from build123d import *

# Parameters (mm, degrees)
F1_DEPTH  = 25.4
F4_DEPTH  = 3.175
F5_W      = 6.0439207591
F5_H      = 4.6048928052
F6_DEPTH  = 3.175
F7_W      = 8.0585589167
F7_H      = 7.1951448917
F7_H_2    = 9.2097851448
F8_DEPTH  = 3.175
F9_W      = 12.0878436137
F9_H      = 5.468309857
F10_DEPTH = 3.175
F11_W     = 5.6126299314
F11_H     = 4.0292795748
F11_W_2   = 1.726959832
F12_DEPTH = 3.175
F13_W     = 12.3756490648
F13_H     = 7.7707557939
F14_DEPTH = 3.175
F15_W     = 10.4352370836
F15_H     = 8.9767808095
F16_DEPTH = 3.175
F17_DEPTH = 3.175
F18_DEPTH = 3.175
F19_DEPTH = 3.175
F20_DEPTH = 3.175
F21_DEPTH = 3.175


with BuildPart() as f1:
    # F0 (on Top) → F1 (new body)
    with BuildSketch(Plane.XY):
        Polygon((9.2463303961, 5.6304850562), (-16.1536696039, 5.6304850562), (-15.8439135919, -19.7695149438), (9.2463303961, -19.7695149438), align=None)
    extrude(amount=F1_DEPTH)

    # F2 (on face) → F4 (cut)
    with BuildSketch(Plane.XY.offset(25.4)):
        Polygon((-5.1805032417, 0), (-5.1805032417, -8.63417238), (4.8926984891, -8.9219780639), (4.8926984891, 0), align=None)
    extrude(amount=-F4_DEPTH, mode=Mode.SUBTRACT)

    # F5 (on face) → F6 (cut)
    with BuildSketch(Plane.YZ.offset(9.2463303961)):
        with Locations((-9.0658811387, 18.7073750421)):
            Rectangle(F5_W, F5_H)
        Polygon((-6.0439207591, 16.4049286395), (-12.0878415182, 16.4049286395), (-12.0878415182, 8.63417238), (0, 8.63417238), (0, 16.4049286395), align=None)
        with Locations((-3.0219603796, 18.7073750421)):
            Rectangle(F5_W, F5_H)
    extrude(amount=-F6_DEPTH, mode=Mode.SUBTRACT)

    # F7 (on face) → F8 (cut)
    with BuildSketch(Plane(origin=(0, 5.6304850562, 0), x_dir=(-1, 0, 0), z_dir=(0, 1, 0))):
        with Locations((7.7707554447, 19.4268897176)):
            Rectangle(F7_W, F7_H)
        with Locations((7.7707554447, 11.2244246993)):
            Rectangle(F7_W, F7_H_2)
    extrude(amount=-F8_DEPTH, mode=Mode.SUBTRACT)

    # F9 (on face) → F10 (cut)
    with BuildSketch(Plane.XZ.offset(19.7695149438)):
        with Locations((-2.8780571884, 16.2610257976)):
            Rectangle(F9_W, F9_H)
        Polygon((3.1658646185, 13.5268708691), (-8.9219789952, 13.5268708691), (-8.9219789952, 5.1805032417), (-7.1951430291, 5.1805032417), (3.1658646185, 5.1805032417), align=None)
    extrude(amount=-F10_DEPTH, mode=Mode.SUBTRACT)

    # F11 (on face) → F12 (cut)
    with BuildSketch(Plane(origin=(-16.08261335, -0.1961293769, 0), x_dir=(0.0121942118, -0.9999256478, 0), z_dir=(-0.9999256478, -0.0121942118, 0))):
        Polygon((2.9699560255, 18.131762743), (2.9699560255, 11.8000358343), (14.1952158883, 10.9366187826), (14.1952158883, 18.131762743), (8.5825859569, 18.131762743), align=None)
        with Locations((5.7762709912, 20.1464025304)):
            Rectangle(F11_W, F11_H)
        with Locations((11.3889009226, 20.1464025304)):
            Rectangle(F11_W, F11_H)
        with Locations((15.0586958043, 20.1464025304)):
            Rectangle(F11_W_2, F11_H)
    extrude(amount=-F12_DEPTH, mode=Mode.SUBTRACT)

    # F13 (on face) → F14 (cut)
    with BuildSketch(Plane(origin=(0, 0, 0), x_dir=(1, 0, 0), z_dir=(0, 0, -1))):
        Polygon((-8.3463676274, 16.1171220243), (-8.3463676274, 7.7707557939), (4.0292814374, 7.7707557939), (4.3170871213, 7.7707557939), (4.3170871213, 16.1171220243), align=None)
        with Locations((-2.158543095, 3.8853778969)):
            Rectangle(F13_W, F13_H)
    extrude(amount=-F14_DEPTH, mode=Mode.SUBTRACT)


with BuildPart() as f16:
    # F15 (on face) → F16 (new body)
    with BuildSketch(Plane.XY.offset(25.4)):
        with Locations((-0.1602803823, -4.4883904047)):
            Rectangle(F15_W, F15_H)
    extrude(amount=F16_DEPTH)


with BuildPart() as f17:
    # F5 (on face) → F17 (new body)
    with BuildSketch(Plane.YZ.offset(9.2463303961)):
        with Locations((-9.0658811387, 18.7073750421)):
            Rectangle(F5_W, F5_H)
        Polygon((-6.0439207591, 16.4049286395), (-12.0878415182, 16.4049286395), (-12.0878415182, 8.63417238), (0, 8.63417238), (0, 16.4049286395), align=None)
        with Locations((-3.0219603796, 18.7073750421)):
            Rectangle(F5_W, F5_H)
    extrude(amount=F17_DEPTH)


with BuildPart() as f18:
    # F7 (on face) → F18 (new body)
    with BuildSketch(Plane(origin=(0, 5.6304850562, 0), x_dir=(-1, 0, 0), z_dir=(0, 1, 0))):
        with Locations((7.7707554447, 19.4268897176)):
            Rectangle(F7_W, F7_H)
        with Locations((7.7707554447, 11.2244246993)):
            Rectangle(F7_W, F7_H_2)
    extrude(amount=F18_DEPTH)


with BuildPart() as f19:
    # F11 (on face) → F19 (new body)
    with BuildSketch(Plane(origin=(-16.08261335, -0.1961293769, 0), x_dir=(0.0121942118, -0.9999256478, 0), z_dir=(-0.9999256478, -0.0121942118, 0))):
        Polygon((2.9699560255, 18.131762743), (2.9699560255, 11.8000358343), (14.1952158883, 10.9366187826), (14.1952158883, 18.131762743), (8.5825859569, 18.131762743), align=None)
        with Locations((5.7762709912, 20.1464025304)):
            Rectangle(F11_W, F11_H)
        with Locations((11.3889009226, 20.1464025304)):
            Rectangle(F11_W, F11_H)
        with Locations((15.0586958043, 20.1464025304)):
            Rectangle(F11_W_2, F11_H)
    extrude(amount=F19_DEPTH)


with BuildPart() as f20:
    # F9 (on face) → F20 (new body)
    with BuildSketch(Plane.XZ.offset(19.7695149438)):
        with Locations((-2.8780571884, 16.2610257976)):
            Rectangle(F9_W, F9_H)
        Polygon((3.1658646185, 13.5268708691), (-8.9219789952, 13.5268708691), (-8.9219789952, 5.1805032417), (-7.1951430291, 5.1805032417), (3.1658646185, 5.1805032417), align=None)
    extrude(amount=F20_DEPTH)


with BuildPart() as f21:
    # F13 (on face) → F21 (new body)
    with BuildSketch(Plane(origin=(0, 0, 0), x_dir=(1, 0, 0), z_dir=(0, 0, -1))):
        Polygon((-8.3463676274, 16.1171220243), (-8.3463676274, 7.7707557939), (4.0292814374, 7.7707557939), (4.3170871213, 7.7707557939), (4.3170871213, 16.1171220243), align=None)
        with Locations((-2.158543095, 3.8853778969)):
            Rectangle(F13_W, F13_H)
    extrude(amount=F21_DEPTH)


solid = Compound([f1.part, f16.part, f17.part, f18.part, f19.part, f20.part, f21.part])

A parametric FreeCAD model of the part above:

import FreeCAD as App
import Part
import Sketcher

V = App.Vector
Q = App.Units.Quantity


def add_polygon(sketch, points):
    """Adds a closed chain of lines whose ends are joined by coincident constraints."""
    first, n = sketch.GeometryCount, len(points)
    for a, b in zip(points, points[1:] + points[:1]):
        sketch.addGeometry(Part.LineSegment(App.Vector(*a, 0), App.Vector(*b, 0)), False)
    for i in range(n):
        sketch.addConstraint(Sketcher.Constraint("Coincident", first + i, 2, first + (i + 1) % n, 1))

doc = App.newDocument("Part")
body = doc.addObject("PartDesign::Body", "Body")

sketch1 = body.newObject("Sketcher::SketchObject", "Sketch")
sketch1.AttachmentSupport = (doc.getObject("XY_Plane"), [""])
sketch1.MapMode = "FlatFace"
add_polygon(sketch1, [(9.24633, 5.630485), (-16.15367, 5.630485), (-15.843914, -19.769515), (9.24633, -19.769515)])
sketch1.addConstraint([
    Sketcher.Constraint("Horizontal", 0),
    Sketcher.Constraint("Horizontal", 2),
    Sketcher.Constraint("Vertical", 3),
    Sketcher.Constraint("Equal", 0, 3),
    Sketcher.Constraint("DistanceX", 0, 2, 0, 1, Q("1 in")),
    Sketcher.Constraint("Distance", 1, Q("25.401889 mm")),
    Sketcher.Constraint("DistanceX", 0, 2, -1, 1, Q("16.15367 mm")),
    Sketcher.Constraint("DistanceY", -1, 1, 0, 2, Q("5.630485 mm")),
])
pad1 = body.newObject("PartDesign::Pad", "Pad")
pad1.Profile = sketch1
pad1.Length = Q("1 in")

sketch2 = body.newObject("Sketcher::SketchObject", "Sketch001")
sketch2.AttachmentSupport = (doc.getObject("XY_Plane"), [""])
sketch2.MapMode = "FlatFace"
sketch2.AttachmentOffset = App.Placement(V(0, 0, 1 * 25.4), App.Rotation())
add_polygon(sketch2, [(-5, 0), (-5, -9), (5, -9), (5, 0)])
sketch2.addConstraint([
    Sketcher.Constraint("Vertical", 0),
    Sketcher.Constraint("Vertical", 2),
    Sketcher.Constraint("Horizontal", 3),
    Sketcher.Constraint("PointOnObject", 2, 2, -1),
    Sketcher.Constraint("DistanceX", 3, 2, 3, 1, Q("10.073202 mm")),
    Sketcher.Constraint("DistanceY", 2, 1, 2, 2, Q("8.921978 mm")),
    Sketcher.Constraint("DistanceX", -1, 1, 1, 2, Q("4.892698 mm")),
    Sketcher.Constraint("DistanceY", 0, 2, 0, 1, Q("8.634172 mm")),
])
pocket1 = body.newObject("PartDesign::Pocket", "Pocket")
pocket1.Profile = sketch2
pocket1.Length = Q("0.125 in")

sketch3 = body.newObject("Sketcher::SketchObject", "Sketch002")
sketch3.AttachmentSupport = (doc.getObject("YZ_Plane"), [""])
sketch3.MapMode = "FlatFace"
sketch3.AttachmentOffset = App.Placement(V(0, 0, 9.24633), App.Rotation())
add_polygon(sketch3, [(-12.1, 21), (-12.1, 8.6), (0, 8.6), (0, 16.4), (0, 21)])
sketch3.addConstraint([
    Sketcher.Constraint("Vertical", 0),
    Sketcher.Constraint("Horizontal", 1),
    Sketcher.Constraint("Vertical", 2),
    Sketcher.Constraint("Vertical", 3),
    Sketcher.Constraint("Horizontal", 4),
    Sketcher.Constraint("PointOnObject", 1, 2, -2),
    Sketcher.Constraint("DistanceX", 1, 1, 1, 2, Q("12.087842 mm")),
    Sketcher.Constraint("DistanceY", 0, 2, 0, 1, Q("12.375649 mm")),
    Sketcher.Constraint("DistanceY", 2, 1, 2, 2, Q("7.770756 mm")),
    Sketcher.Constraint("DistanceY", -1, 1, 2, 2, Q("16.404929 mm")),
])
pocket2 = body.newObject("PartDesign::Pocket", "Pocket001")
pocket2.Profile = sketch3
pocket2.Length = Q("0.125 in")

sketch4 = body.newObject("Sketcher::SketchObject", "Sketch003")
sketch4.AttachmentSupport = (doc.getObject("XZ_Plane"), [""])
sketch4.MapMode = "FlatFace"
sketch4.AttachmentOffset = App.Placement(V(0, 0, -5.630485), App.Rotation())
add_polygon(sketch4, [(-4, 23), (-4, 7), (-12, 7), (-12, 23)])
sketch4.addConstraint([
    Sketcher.Constraint("Vertical", 0),
    Sketcher.Constraint("Horizontal", 1),
    Sketcher.Constraint("Vertical", 2),
    Sketcher.Constraint("Horizontal", 3),
    Sketcher.Constraint("DistanceX", 1, 2, 1, 1, Q("8.058559 mm")),
    Sketcher.Constraint("DistanceY", 0, 2, 0, 1, Q("16.40493 mm")),
    Sketcher.Constraint("DistanceX", 0, 2, -1, 1, Q("3.741476 mm")),
    Sketcher.Constraint("DistanceY", -1, 1, 0, 2, Q("6.619532 mm")),
])
pocket3 = body.newObject("PartDesign::Pocket", "Pocket002")
pocket3.Profile = sketch4
pocket3.Length = Q("0.125 in")
pocket3.Reversed = True

sketch5 = body.newObject("Sketcher::SketchObject", "Sketch004")
sketch5.AttachmentSupport = (doc.getObject("XZ_Plane"), [""])
sketch5.MapMode = "FlatFace"
sketch5.AttachmentOffset = App.Placement(V(0, 0, 19.769515), App.Rotation())
add_polygon(sketch5, [(-9, 19), (-9, 5), (3, 5), (3, 14), (3, 19)])
sketch5.addConstraint([
    Sketcher.Constraint("Vertical", 0),
    Sketcher.Constraint("Horizontal", 1),
    Sketcher.Constraint("Vertical", 2),
    Sketcher.Constraint("Vertical", 3),
    Sketcher.Constraint("Horizontal", 4),
    Sketcher.Constraint("DistanceY", 3, 1, 3, 2, Q("5.46831 mm")),
    Sketcher.Constraint("DistanceX", 1, 1, 1, 2, Q("12.087844 mm")),
    Sketcher.Constraint("DistanceY", 0, 2, 0, 1, Q("13.814677 mm")),
    Sketcher.Constraint("DistanceX", 0, 2, -1, 1, Q("8.921979 mm")),
    Sketcher.Constraint("DistanceY", -1, 1, 2, 2, Q("13.526871 mm")),
])
pocket4 = body.newObject("PartDesign::Pocket", "Pocket003")
pocket4.Profile = sketch5
pocket4.Length = Q("0.125 in")

sketch6 = body.newObject("Sketcher::SketchObject", "Sketch005")
sketch6.Placement = App.Placement(V(-16.082613, -0.196129, 0), App.Rotation(V(0.012194212, -0.999925648, 0), V(0, 0, 1), V(-0.999925648, -0.012194212, 0), "ZXY"))
add_polygon(sketch6, [(3, 11.8), (14.2, 10.9), (14.2, 18.1), (15.9, 18.1), (15.9, 22.2), (3, 22.2)])
sketch6.addConstraint([
    Sketcher.Constraint("Vertical", 1),
    Sketcher.Constraint("Horizontal", 2),
    Sketcher.Constraint("Vertical", 3),
    Sketcher.Constraint("Horizontal", 4),
    Sketcher.Constraint("Vertical", 5),
    Sketcher.Constraint("DistanceX", 2, 1, 2, 2, Q("1.72696 mm")),
    Sketcher.Constraint("DistanceX", 4, 2, 4, 1, Q("12.95222 mm")),
    Sketcher.Constraint("DistanceY", 3, 1, 3, 2, Q("4.02928 mm")),
    Sketcher.Constraint("DistanceY", 1, 1, 1, 2, Q("7.195144 mm")),
    Sketcher.Constraint("DistanceY", 5, 2, 5, 1, Q("10.361006 mm")),
    Sketcher.Constraint("DistanceY", -1, 1, 0, 2, Q("10.936619 mm")),
    Sketcher.Constraint("DistanceX", -1, 1, 0, 2, Q("14.195216 mm")),
])
pocket5 = body.newObject("PartDesign::Pocket", "Pocket004")
pocket5.Profile = sketch6
pocket5.Length = Q("0.125 in")

sketch7 = body.newObject("Sketcher::SketchObject", "Sketch006")
sketch7.AttachmentSupport = (doc.getObject("XY_Plane"), [""])
sketch7.MapMode = "FlatFace"
add_polygon(sketch7, [(-8.35, -16.12), (-8.35, 0), (4.03, 0), (4.03, -7.77), (4.32, -7.77), (4.32, -16.12)])
sketch7.addConstraint([
    Sketcher.Constraint("Vertical", 0),
    Sketcher.Constraint("Horizontal", 1),
    Sketcher.Constraint("Vertical", 2),
    Sketcher.Constraint("Horizontal", 3),
    Sketcher.Constraint("Vertical", 4),
    Sketcher.Constraint("Horizontal", 5),
    Sketcher.Constraint("PointOnObject", 0, 2, -1),
    Sketcher.Constraint("DistanceX", 1, 1, 1, 2, Q("12.375649 mm")),
    Sketcher.Constraint("DistanceX", 3, 1, 3, 2, Q("0.287806 mm")),
    Sketcher.Constraint("DistanceY", 0, 1, 0, 2, Q("16.117122 mm")),
    Sketcher.Constraint("DistanceY", 2, 2, 2, 1, Q("7.770756 mm")),
    Sketcher.Constraint("DistanceX", -1, 1, 1, 2, Q("4.029281 mm")),
])
pocket6 = body.newObject("PartDesign::Pocket", "Pocket005")
pocket6.Profile = sketch7
pocket6.Length = Q("0.125 in")
pocket6.Reversed = True
body2 = doc.addObject("PartDesign::Body", "Body001")

sketch8 = body2.newObject("Sketcher::SketchObject", "Sketch007")
sketch8.AttachmentSupport = (doc.getObject("XY_Plane001"), [""])
sketch8.MapMode = "FlatFace"
sketch8.AttachmentOffset = App.Placement(V(0, 0, 1 * 25.4), App.Rotation())
add_polygon(sketch8, [(-5, 0), (-5, -9), (5, -9), (5, 0)])
sketch8.addConstraint([
    Sketcher.Constraint("Vertical", 0),
    Sketcher.Constraint("Horizontal", 1),
    Sketcher.Constraint("Vertical", 2),
    Sketcher.Constraint("Horizontal", 3),
    Sketcher.Constraint("PointOnObject", 2, 2, -1),
    Sketcher.Constraint("DistanceY", 0, 2, 0, 1, Q("8.976781 mm")),
    Sketcher.Constraint("DistanceX", 0, 2, -1, 1, Q("5.377899 mm")),
    Sketcher.Constraint("DistanceX", 1, 1, 1, 2, Q("10.435237 mm")),
])
pad2 = body2.newObject("PartDesign::Pad", "Pad001")
pad2.Profile = sketch8
pad2.Length = Q("0.125 in")
body3 = doc.addObject("PartDesign::Body", "Body002")

sketch9 = body3.newObject("Sketcher::SketchObject", "Sketch008")
sketch9.AttachmentSupport = (doc.getObject("YZ_Plane002"), [""])
sketch9.MapMode = "FlatFace"
sketch9.AttachmentOffset = App.Placement(V(0, 0, 9.24633), App.Rotation())
add_polygon(sketch9, [(-12.1, 21), (-12.1, 8.6), (0, 8.6), (0, 16.4), (0, 21)])
sketch9.addConstraint([
    Sketcher.Constraint("Vertical", 0),
    Sketcher.Constraint("Horizontal", 1),
    Sketcher.Constraint("Vertical", 2),
    Sketcher.Constraint("Vertical", 3),
    Sketcher.Constraint("Horizontal", 4),
    Sketcher.Constraint("PointOnObject", 1, 2, -2),
    Sketcher.Constraint("DistanceX", 1, 1, 1, 2, Q("12.087842 mm")),
    Sketcher.Constraint("DistanceY", 0, 2, 0, 1, Q("12.375649 mm")),
    Sketcher.Constraint("DistanceY", 2, 1, 2, 2, Q("7.770756 mm")),
    Sketcher.Constraint("DistanceY", -1, 1, 2, 2, Q("16.404929 mm")),
])
pad3 = body3.newObject("PartDesign::Pad", "Pad002")
pad3.Profile = sketch9
pad3.Length = Q("0.125 in")
body4 = doc.addObject("PartDesign::Body", "Body003")

sketch10 = body4.newObject("Sketcher::SketchObject", "Sketch009")
sketch10.AttachmentSupport = (doc.getObject("XZ_Plane003"), [""])
sketch10.MapMode = "FlatFace"
sketch10.AttachmentOffset = App.Placement(V(0, 0, -5.630485), App.Rotation())
add_polygon(sketch10, [(-4, 23), (-4, 7), (-12, 7), (-12, 23)])
sketch10.addConstraint([
    Sketcher.Constraint("Vertical", 0),
    Sketcher.Constraint("Horizontal", 1),
    Sketcher.Constraint("Vertical", 2),
    Sketcher.Constraint("Horizontal", 3),
    Sketcher.Constraint("DistanceX", 1, 2, 1, 1, Q("8.058559 mm")),
    Sketcher.Constraint("DistanceY", 0, 2, 0, 1, Q("16.40493 mm")),
    Sketcher.Constraint("DistanceX", 0, 2, -1, 1, Q("3.741476 mm")),
    Sketcher.Constraint("DistanceY", -1, 1, 0, 2, Q("6.619532 mm")),
])
pad4 = body4.newObject("PartDesign::Pad", "Pad003")
pad4.Profile = sketch10
pad4.Length = Q("0.125 in")
pad4.Reversed = True
body5 = doc.addObject("PartDesign::Body", "Body004")

sketch11 = body5.newObject("Sketcher::SketchObject", "Sketch010")
sketch11.Placement = App.Placement(V(-16.082613, -0.196129, 0), App.Rotation(V(0.012194212, -0.999925648, 0), V(0, 0, 1), V(-0.999925648, -0.012194212, 0), "ZXY"))
add_polygon(sketch11, [(3, 11.8), (14.2, 10.9), (14.2, 18.1), (15.9, 18.1), (15.9, 22.2), (3, 22.2)])
sketch11.addConstraint([
    Sketcher.Constraint("Vertical", 1),
    Sketcher.Constraint("Horizontal", 2),
    Sketcher.Constraint("Vertical", 3),
    Sketcher.Constraint("Horizontal", 4),
    Sketcher.Constraint("Vertical", 5),
    Sketcher.Constraint("DistanceX", 2, 1, 2, 2, Q("1.72696 mm")),
    Sketcher.Constraint("DistanceX", 4, 2, 4, 1, Q("12.95222 mm")),
    Sketcher.Constraint("DistanceY", 3, 1, 3, 2, Q("4.02928 mm")),
    Sketcher.Constraint("DistanceY", 1, 1, 1, 2, Q("7.195144 mm")),
    Sketcher.Constraint("DistanceY", 5, 2, 5, 1, Q("10.361006 mm")),
    Sketcher.Constraint("DistanceY", -1, 1, 0, 2, Q("10.936619 mm")),
    Sketcher.Constraint("DistanceX", -1, 1, 0, 2, Q("14.195216 mm")),
])
pad5 = body5.newObject("PartDesign::Pad", "Pad004")
pad5.Profile = sketch11
pad5.Length = Q("0.125 in")
body6 = doc.addObject("PartDesign::Body", "Body005")

sketch12 = body6.newObject("Sketcher::SketchObject", "Sketch011")
sketch12.AttachmentSupport = (doc.getObject("XZ_Plane005"), [""])
sketch12.MapMode = "FlatFace"
sketch12.AttachmentOffset = App.Placement(V(0, 0, 19.769515), App.Rotation())
add_polygon(sketch12, [(-9, 19), (-9, 5), (3, 5), (3, 14), (3, 19)])
sketch12.addConstraint([
    Sketcher.Constraint("Vertical", 0),
    Sketcher.Constraint("Horizontal", 1),
    Sketcher.Constraint("Vertical", 2),
    Sketcher.Constraint("Vertical", 3),
    Sketcher.Constraint("Horizontal", 4),
    Sketcher.Constraint("DistanceY", 3, 1, 3, 2, Q("5.46831 mm")),
    Sketcher.Constraint("DistanceX", 1, 1, 1, 2, Q("12.087844 mm")),
    Sketcher.Constraint("DistanceY", 0, 2, 0, 1, Q("13.814677 mm")),
    Sketcher.Constraint("DistanceX", 0, 2, -1, 1, Q("8.921979 mm")),
    Sketcher.Constraint("DistanceY", -1, 1, 2, 2, Q("13.526871 mm")),
])
pad6 = body6.newObject("PartDesign::Pad", "Pad005")
pad6.Profile = sketch12
pad6.Length = Q("0.125 in")
body7 = doc.addObject("PartDesign::Body", "Body006")

sketch13 = body7.newObject("Sketcher::SketchObject", "Sketch012")
sketch13.AttachmentSupport = (doc.getObject("XY_Plane006"), [""])
sketch13.MapMode = "FlatFace"
add_polygon(sketch13, [(-8.35, -16.12), (-8.35, 0), (4.03, 0), (4.03, -7.77), (4.32, -7.77), (4.32, -16.12)])
sketch13.addConstraint([
    Sketcher.Constraint("Vertical", 0),
    Sketcher.Constraint("Horizontal", 1),
    Sketcher.Constraint("Vertical", 2),
    Sketcher.Constraint("Horizontal", 3),
    Sketcher.Constraint("Vertical", 4),
    Sketcher.Constraint("Horizontal", 5),
    Sketcher.Constraint("PointOnObject", 0, 2, -1),
    Sketcher.Constraint("DistanceX", 1, 1, 1, 2, Q("12.375649 mm")),
    Sketcher.Constraint("DistanceX", 3, 1, 3, 2, Q("0.287806 mm")),
    Sketcher.Constraint("DistanceY", 0, 1, 0, 2, Q("16.117122 mm")),
    Sketcher.Constraint("DistanceY", 2, 2, 2, 1, Q("7.770756 mm")),
    Sketcher.Constraint("DistanceX", -1, 1, 1, 2, Q("4.029281 mm")),
])
pad7 = body7.newObject("PartDesign::Pad", "Pad006")
pad7.Profile = sketch13
pad7.Length = Q("0.125 in")
pad7.Reversed = True

doc.recompute()
